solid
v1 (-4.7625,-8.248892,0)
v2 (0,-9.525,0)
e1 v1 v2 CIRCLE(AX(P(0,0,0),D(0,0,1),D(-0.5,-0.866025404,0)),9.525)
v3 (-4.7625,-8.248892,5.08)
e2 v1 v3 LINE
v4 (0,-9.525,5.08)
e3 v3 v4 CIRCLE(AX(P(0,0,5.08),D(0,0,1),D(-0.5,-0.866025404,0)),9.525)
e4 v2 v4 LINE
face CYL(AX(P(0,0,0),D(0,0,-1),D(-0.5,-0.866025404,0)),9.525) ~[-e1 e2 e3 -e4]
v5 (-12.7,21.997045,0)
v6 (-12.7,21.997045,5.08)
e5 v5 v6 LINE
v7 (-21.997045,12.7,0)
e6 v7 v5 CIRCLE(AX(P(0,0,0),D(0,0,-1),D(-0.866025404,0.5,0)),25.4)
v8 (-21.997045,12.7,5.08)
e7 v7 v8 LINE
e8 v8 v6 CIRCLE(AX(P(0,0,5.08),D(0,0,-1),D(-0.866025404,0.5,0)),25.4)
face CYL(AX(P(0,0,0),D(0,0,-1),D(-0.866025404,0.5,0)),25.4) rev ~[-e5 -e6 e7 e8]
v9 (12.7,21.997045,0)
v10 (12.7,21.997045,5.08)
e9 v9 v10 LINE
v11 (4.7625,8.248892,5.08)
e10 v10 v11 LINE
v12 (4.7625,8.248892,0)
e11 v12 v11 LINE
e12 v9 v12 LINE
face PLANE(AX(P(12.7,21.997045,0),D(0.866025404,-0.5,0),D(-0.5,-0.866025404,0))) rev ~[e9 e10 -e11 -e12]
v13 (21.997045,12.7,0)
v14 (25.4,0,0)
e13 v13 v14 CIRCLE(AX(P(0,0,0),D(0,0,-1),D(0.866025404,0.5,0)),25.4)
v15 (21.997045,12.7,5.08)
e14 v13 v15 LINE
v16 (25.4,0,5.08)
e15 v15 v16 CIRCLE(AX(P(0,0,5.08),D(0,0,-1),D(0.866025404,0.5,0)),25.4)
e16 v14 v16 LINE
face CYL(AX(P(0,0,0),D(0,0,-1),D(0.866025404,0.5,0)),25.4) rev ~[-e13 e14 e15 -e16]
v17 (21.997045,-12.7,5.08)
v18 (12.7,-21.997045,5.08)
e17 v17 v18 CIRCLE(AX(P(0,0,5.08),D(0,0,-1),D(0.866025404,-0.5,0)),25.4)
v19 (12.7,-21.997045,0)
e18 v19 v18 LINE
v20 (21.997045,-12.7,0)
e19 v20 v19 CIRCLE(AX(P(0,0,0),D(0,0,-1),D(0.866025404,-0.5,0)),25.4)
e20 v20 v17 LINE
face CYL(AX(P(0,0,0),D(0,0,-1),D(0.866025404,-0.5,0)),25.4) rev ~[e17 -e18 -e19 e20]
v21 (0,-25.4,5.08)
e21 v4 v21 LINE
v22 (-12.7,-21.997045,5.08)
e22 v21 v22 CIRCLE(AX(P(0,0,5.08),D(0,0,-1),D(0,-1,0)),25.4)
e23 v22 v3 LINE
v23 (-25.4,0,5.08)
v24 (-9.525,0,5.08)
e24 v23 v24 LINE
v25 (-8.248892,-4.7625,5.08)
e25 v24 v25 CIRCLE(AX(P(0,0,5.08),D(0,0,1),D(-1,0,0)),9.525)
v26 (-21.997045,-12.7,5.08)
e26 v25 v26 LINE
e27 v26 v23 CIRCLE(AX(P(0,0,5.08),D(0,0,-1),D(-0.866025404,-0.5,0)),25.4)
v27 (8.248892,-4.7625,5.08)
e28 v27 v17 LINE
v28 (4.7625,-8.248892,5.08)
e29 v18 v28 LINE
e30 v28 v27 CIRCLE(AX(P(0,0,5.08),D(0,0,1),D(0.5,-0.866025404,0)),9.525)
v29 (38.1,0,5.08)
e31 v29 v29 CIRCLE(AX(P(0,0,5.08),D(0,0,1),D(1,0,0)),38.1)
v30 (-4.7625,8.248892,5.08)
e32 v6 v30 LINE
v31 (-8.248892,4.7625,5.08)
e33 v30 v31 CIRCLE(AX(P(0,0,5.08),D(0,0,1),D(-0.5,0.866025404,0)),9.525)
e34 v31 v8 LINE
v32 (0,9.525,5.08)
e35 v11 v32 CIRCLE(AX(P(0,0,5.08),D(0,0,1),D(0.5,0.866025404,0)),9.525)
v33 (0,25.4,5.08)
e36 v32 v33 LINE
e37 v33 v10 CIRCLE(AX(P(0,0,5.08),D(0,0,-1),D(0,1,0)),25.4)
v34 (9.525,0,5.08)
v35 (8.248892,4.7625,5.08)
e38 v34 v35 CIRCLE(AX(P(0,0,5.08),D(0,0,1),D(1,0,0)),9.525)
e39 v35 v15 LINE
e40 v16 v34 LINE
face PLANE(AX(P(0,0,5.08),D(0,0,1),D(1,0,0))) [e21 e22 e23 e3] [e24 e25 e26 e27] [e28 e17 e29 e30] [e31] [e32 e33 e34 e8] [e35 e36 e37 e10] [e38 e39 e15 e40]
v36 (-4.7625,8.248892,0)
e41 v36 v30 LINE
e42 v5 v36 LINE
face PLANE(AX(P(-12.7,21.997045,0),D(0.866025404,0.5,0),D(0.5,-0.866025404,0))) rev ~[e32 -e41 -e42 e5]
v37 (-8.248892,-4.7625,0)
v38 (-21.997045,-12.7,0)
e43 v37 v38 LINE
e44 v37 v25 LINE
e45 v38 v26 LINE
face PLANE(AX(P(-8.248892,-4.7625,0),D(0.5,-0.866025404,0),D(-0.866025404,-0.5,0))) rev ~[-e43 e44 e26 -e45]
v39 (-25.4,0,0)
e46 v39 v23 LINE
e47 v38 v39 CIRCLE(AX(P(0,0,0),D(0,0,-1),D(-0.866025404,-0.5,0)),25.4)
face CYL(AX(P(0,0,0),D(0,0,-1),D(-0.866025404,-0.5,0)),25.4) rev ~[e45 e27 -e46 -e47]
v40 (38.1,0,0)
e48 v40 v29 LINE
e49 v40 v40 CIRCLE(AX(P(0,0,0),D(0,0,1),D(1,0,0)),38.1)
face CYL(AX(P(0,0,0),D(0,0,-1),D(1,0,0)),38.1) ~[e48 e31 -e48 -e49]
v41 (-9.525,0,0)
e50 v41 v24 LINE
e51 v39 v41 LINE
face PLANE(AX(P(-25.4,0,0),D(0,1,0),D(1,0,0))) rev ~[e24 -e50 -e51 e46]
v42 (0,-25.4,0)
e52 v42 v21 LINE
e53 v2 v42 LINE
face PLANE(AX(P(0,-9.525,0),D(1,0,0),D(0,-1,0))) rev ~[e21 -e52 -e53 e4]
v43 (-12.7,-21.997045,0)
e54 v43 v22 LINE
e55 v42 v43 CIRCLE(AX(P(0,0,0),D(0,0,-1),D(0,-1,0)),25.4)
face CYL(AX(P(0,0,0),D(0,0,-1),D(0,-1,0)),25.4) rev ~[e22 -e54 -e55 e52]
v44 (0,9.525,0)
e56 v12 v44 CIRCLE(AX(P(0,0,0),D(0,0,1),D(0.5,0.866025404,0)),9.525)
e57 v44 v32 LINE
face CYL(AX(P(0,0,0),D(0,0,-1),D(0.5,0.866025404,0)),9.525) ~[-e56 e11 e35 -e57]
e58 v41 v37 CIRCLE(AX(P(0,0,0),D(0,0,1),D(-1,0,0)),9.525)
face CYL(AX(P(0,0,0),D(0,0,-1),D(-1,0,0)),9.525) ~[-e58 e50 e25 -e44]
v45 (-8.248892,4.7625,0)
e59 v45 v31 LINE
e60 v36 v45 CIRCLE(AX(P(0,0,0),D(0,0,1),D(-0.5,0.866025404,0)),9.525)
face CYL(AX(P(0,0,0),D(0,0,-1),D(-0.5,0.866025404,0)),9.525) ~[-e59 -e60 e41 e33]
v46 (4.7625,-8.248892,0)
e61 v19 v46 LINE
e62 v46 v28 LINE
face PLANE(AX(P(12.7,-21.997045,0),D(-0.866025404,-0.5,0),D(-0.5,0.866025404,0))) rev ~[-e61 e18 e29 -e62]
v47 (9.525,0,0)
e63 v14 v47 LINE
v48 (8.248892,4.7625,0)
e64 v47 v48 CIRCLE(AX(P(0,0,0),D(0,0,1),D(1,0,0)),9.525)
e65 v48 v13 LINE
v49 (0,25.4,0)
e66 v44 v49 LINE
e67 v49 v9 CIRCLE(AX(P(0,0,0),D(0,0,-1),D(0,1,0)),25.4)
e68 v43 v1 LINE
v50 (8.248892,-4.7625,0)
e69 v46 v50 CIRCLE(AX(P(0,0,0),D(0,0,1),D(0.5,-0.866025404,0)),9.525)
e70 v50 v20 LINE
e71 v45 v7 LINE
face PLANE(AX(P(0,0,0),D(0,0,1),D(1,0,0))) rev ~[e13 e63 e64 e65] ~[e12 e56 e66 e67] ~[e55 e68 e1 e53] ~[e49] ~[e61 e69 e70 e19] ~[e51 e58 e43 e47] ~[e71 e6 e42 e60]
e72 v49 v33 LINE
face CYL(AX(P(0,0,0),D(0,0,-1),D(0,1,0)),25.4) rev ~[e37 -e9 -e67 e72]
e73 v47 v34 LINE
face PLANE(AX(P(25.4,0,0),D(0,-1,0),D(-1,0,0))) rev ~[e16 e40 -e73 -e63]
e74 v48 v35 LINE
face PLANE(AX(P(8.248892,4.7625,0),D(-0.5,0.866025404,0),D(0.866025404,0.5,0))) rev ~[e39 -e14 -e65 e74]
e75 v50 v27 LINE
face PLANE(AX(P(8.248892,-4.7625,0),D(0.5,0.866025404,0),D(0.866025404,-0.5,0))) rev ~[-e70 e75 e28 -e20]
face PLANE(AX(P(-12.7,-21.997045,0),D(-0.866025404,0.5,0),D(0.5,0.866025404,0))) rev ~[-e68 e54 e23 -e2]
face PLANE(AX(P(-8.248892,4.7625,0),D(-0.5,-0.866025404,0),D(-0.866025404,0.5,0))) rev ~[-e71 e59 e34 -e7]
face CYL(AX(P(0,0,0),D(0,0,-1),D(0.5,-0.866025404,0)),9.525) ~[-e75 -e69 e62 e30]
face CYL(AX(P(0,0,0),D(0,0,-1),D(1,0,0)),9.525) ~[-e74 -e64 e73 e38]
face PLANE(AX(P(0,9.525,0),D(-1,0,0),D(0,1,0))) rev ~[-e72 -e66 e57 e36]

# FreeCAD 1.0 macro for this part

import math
import FreeCAD as App
import Part
import Sketcher

V = App.Vector
Q = App.Units.Quantity

doc = App.newDocument("Part")
body = doc.addObject("PartDesign::Body", "Body")

# Sketch on XY plane
sketch1 = body.newObject("Sketcher::SketchObject", "Sketch")
sketch1.AttachmentSupport = (doc.getObject("XY_Plane"), [""])
sketch1.MapMode = "FlatFace"
sketch1.addGeometry([
    Part.Circle(V(0, 0, 0), V(0, 0, 1), 38.1),  # 0
    Part.ArcOfCircle(Part.Circle(V(0, 0, 0), V(0, 0, 1), 25.4), math.radians(0), math.radians(30)),  # 1
    Part.LineSegment(V(25.4, 0, 0), V(9.5, 0, 0)),  # 2
    Part.ArcOfCircle(Part.Circle(V(0, 0, 0), V(0, 0, 1), 9.5), math.radians(0), math.radians(30)),  # 3
    Part.LineSegment(V(8.2, 4.8, 0), V(22, 12.7, 0)),  # 4
    Part.ArcOfCircle(Part.Circle(V(0, 0, 0), V(0, 0, 1), 25.4), math.radians(-60), math.radians(-30)),  # 5
    Part.LineSegment(V(12.7, -22, 0), V(4.8, -8.2, 0)),  # 6
    Part.ArcOfCircle(Part.Circle(V(0, 0, 0), V(0, 0, 1), 9.5), math.radians(-60), math.radians(-30)),  # 7
    Part.LineSegment(V(8.2, -4.8, 0), V(22, -12.7, 0)),  # 8
    Part.ArcOfCircle(Part.Circle(V(0, 0, 0), V(0, 0, 1), 25.4), math.radians(-120), math.radians(-90)),  # 9
    Part.LineSegment(V(-12.7, -22, 0), V(-4.8, -8.2, 0)),  # 10
    Part.ArcOfCircle(Part.Circle(V(0, 0, 0), V(0, 0, 1), 9.5), math.radians(-120), math.radians(-90)),  # 11
    Part.LineSegment(V(0, -9.5, 0), V(0, -25.4, 0)),  # 12
    Part.ArcOfCircle(Part.Circle(V(0, 0, 0), V(0, 0, 1), 25.4), math.radians(180), math.radians(210)),  # 13
    Part.LineSegment(V(-25.4, 0, 0), V(-9.5, 0, 0)),  # 14
    Part.ArcOfCircle(Part.Circle(V(0, 0, 0), V(0, 0, 1), 9.5), math.radians(180), math.radians(210)),  # 15
    Part.LineSegment(V(-8.2, -4.8, 0), V(-22, -12.7, 0)),  # 16
    Part.ArcOfCircle(Part.Circle(V(0, 0, 0), V(0, 0, 1), 9.5), math.radians(60), math.radians(90)),  # 17
    Part.LineSegment(V(0, 9.5, 0), V(0, 25.4, 0)),  # 18
    Part.ArcOfCircle(Part.Circle(V(0, 0, 0), V(0, 0, 1), 25.4), math.radians(60), math.radians(90)),  # 19
    Part.LineSegment(V(12.7, 22, 0), V(4.8, 8.2, 0)),  # 20
    Part.ArcOfCircle(Part.Circle(V(0, 0, 0), V(0, 0, 1), 9.5), math.radians(120), math.radians(150)),  # 21
    Part.LineSegment(V(-8.2, 4.8, 0), V(-22, 12.7, 0)),  # 22
    Part.ArcOfCircle(Part.Circle(V(0, 0, 0), V(0, 0, 1), 25.4), math.radians(120), math.radians(150)),  # 23
    Part.LineSegment(V(-12.7, 22, 0), V(-4.8, 8.2, 0)),  # 24
], False)
sketch1.addConstraint([
    Sketcher.Constraint("Coincident", 1, 1, 2, 1),
    Sketcher.Constraint("Coincident", 2, 2, 3, 1),
    Sketcher.Constraint("Coincident", 3, 2, 4, 1),
    Sketcher.Constraint("Coincident", 4, 2, 1, 2),
    Sketcher.Constraint("Coincident", 5, 1, 6, 1),
    Sketcher.Constraint("Coincident", 6, 2, 7, 1),
    Sketcher.Constraint("Coincident", 7, 2, 8, 1),
    Sketcher.Constraint("Coincident", 8, 2, 5, 2),
    Sketcher.Constraint("Coincident", 9, 1, 10, 1),
    Sketcher.Constraint("Coincident", 10, 2, 11, 1),
    Sketcher.Constraint("Coincident", 11, 2, 12, 1),
    Sketcher.Constraint("Coincident", 12, 2, 9, 2),
    Sketcher.Constraint("Coincident", 13, 1, 14, 1),
    Sketcher.Constraint("Coincident", 14, 2, 15, 1),
    Sketcher.Constraint("Coincident", 15, 2, 16, 1),
    Sketcher.Constraint("Coincident", 16, 2, 13, 2),
    Sketcher.Constraint("Coincident", 17, 2, 18, 1),
    Sketcher.Constraint("Coincident", 18, 2, 19, 2),
    Sketcher.Constraint("Coincident", 19, 1, 20, 1),
    Sketcher.Constraint("Coincident", 20, 2, 17, 1),
    Sketcher.Constraint("Coincident", 21, 2, 22, 1),
    Sketcher.Constraint("Coincident", 22, 2, 23, 2),
    Sketcher.Constraint("Coincident", 23, 1, 24, 1),
    Sketcher.Constraint("Coincident", 24, 2, 21, 1),
    Sketcher.Constraint("Horizontal", 2),
    Sketcher.Constraint("Vertical", 12),
    Sketcher.Constraint("Horizontal", 14),
    Sketcher.Constraint("Vertical", 18),
    Sketcher.Constraint("Coincident", 0, 3, -1, 1),
    Sketcher.Constraint("Coincident", 1, 3, -1, 1),
    Sketcher.Constraint("Coincident", 3, 3, -1, 1),
    Sketcher.Constraint("Coincident", 5, 3, -1, 1),
    Sketcher.Constraint("Coincident", 7, 3, -1, 1),
    Sketcher.Constraint("Coincident", 9, 3, -1, 1),
    Sketcher.Constraint("Coincident", 11, 3, -1, 1),
    Sketcher.Constraint("Coincident", 13, 3, -1, 1),
    Sketcher.Constraint("Coincident", 15, 3, -1, 1),
    Sketcher.Constraint("Coincident", 17, 3, -1, 1),
    Sketcher.Constraint("Coincident", 19, 3, -1, 1),
    Sketcher.Constraint("Coincident", 21, 3, -1, 1),
    Sketcher.Constraint("Coincident", 23, 3, -1, 1),
    Sketcher.Constraint("Equal", 1, 5),
    Sketcher.Constraint("Equal", 3, 7),
    Sketcher.Constraint("Equal", 5, 9),
    Sketcher.Constraint("Equal", 7, 11),
    Sketcher.Constraint("Equal", 9, 13),
    Sketcher.Constraint("Equal", 11, 15),
    Sketcher.Constraint("Equal", 15, 17),
    Sketcher.Constraint("Equal", 13, 19),
    Sketcher.Constraint("Equal", 17, 21),
    Sketcher.Constraint("Equal", 19, 23),
    Sketcher.Constraint("PointOnObject", 1, 1, -1),
    Sketcher.Constraint("PointOnObject", 11, 2, -2),
    Sketcher.Constraint("PointOnObject", 13, 1, -1),
    Sketcher.Constraint("PointOnObject", 17, 2, -2),
    Sketcher.Constraint("Perpendicular", 4, 6),
    Sketcher.Constraint("Perpendicular", 8, 10),
    Sketcher.Constraint("Perpendicular", 6, 16),
    Sketcher.Constraint("Parallel", 10, 20),
    Sketcher.Constraint("Perpendicular", 20, 22),
    Sketcher.Constraint("Perpendicular", 16, 24),
    Sketcher.Constraint("Horizontal", 5, 1, 9, 1),
    Sketcher.Constraint("Horizontal", 6, 2, 10, 2),
    Sketcher.Constraint("Horizontal", 7, 2, 15, 2),
    Sketcher.Constraint("Horizontal", 3, 2, 21, 2),
    Sketcher.Constraint("Horizontal", 19, 1, 23, 1),
    Sketcher.Constraint("Vertical", 3, 2, 7, 2),
    Sketcher.Constraint("Vertical", 5, 1, 19, 1),
    Sketcher.Constraint("Diameter", 0, Q("3 in")),
    Sketcher.Constraint("Radius", 1, Q("1 in")),
    Sketcher.Constraint("Angle", 4, Q("30 deg")),
    Sketcher.Constraint("Radius", 3, Q("0.375 in")),
    Sketcher.Constraint("DistanceY", -1, 1, 4, 2, Q("0.5 in")),
    Sketcher.Constraint("DistanceX", -1, 1, 5, 1, Q("0.5 in")),
])
pad1 = body.newObject("PartDesign::Pad", "Pad")
pad1.Profile = sketch1
pad1.Length = Q("0.2 in")

doc.recompute()
